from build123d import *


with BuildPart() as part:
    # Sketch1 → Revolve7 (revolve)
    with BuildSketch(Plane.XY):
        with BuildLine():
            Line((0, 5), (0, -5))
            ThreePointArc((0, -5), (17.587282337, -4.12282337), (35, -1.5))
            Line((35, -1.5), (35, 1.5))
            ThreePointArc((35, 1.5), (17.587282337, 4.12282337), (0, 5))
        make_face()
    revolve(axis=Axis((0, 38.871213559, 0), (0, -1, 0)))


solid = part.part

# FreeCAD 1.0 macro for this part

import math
import FreeCAD as App
import Part
import Sketcher
from FreeCAD import Vector
Q = App.Units.Quantity

doc = App.newDocument("Part")
body = doc.addObject("PartDesign::Body", "Body")

# Sketch on XY plane
sketch1 = body.newObject("Sketcher::SketchObject", "Sketch")
sketch1.AttachmentSupport = (doc.getObject("XY_Plane"), [""])
sketch1.MapMode = "FlatFace"
sketch1.addGeometry(Part.LineSegment(Vector(0, 5, 0), Vector(0, -5, 0)), False)
sketch1.addGeometry(Part.ArcOfCircle(Part.Circle(Vector(0, 171.75, 0), Vector(0, 0, 1), 176.75), math.radians(-90), math.radians(-78.578814)), False)
sketch1.addGeometry(Part.LineSegment(Vector(35, -1.5, 0), Vector(35, 1.5, 0)), False)
sketch1.addGeometry(Part.ArcOfCircle(Part.Circle(Vector(0, -171.75, 0), Vector(0, 0, 1), 176.75), math.radians(78.578814), math.radians(90)), False)
sketch1.addConstraint(Sketcher.Constraint("Coincident", 0, 2, 1, 1))
sketch1.addConstraint(Sketcher.Constraint("Coincident", 1, 2, 2, 1))
sketch1.addConstraint(Sketcher.Constraint("Coincident", 2, 2, 3, 1))
sketch1.addConstraint(Sketcher.Constraint("Coincident", 3, 2, 0, 1))
sketch1.addConstraint(Sketcher.Constraint("Vertical", 0))
sketch1.addConstraint(Sketcher.Constraint("Vertical", 2))
sketch1.addConstraint(Sketcher.Constraint("Equal", 1, 3))
sketch1.addConstraint(Sketcher.Constraint("Symmetric", 1, 3, 3, 3, -1, 1))
sketch1.addConstraint(Sketcher.Constraint("PointOnObject", 1, 3, -2))
sketch1.addConstraint(Sketcher.Constraint("PointOnObject", 0, 2, -2))
sketch1.addConstraint(Sketcher.Constraint("DistanceY", 0, 2, 0, 1, Q("10 mm")))
sketch1.addConstraint(Sketcher.Constraint("DistanceY", 2, 1, 2, 2, Q("3 mm")))
sketch1.addConstraint(Sketcher.Constraint("Radius", 1, Q("176.75 mm")))
revolution = body.newObject("PartDesign::Revolution", "Revolution")
revolution.Profile = sketch1
revolution.ReferenceAxis = (sketch1, ["V_Axis"])
revolution.Angle = 360

doc.recompute()
